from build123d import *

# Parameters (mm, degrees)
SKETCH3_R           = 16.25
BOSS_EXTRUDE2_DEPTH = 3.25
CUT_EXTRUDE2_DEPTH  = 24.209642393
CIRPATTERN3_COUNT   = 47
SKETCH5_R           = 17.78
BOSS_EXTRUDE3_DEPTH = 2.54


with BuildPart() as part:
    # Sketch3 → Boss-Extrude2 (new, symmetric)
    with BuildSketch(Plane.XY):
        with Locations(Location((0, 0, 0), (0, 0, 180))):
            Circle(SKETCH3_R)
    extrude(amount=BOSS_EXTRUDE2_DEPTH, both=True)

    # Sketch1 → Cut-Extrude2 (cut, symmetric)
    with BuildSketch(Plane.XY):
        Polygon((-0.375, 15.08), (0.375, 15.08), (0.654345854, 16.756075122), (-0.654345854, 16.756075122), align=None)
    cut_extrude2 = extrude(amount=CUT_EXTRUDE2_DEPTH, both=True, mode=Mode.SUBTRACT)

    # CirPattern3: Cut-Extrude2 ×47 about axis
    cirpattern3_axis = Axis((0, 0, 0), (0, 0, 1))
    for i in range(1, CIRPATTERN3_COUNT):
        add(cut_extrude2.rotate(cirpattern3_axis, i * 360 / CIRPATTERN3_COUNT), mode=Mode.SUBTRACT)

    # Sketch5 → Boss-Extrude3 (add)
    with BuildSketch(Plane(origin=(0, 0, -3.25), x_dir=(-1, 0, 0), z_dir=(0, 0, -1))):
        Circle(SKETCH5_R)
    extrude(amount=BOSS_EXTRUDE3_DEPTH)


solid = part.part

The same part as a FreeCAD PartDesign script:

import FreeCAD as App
import Part
import Sketcher
from FreeCAD import Vector
Q = App.Units.Quantity


def add_polygon(sketch, points):
    """Adds a closed chain of lines whose ends are joined by coincident constraints."""
    first, n = sketch.GeometryCount, len(points)
    for a, b in zip(points, points[1:] + points[:1]):
        sketch.addGeometry(Part.LineSegment(App.Vector(*a, 0), App.Vector(*b, 0)), False)
    for i in range(n):
        sketch.addConstraint(Sketcher.Constraint("Coincident", first + i, 2, first + (i + 1) % n, 1))

doc = App.newDocument("Part")
body = doc.addObject("PartDesign::Body", "Body")

sketch1 = body.newObject("Sketcher::SketchObject", "Sketch")
sketch1.AttachmentSupport = (doc.getObject("XY_Plane"), [""])
sketch1.MapMode = "FlatFace"
sketch1.addGeometry(Part.Circle(Vector(0, 0, 0), Vector(0, 0, 1), 16), False)
sketch1.addConstraint([
    Sketcher.Constraint("Coincident", 0, 3, -1, 1),
    Sketcher.Constraint("Diameter", 0, 32.5),
])
pad1 = body.newObject("PartDesign::Pad", "Pad")
pad1.Profile = sketch1
pad1.Length = 6.5
pad1.Midplane = True

sketch2 = body.newObject("Sketcher::SketchObject", "Sketch001")
sketch2.AttachmentSupport = (doc.getObject("XY_Plane"), [""])
sketch2.MapMode = "FlatFace"
add_polygon(sketch2, [(-0.4, 15.1), (0.4, 15.1), (0.7, 16.8), (-0.7, 16.8)])
sketch2.addConstraint([
    Sketcher.Constraint("Horizontal", 0),
    Sketcher.Constraint("Horizontal", 2),
    Sketcher.Constraint("Equal", 1, 3),
    Sketcher.Constraint("DistanceX", 0, 1, 0, 2, 0.75),
    Sketcher.Constraint("DistanceX", 2, 2, 2, 1, 1.308692),
    Sketcher.Constraint("DistanceX", -1, 1, 0, 2, 0.375),
    Sketcher.Constraint("DistanceY", -1, 1, 0, 2, 15.08),
    Sketcher.Constraint("Distance", 1, 1.699194),
])
pocket1 = body.newObject("PartDesign::Pocket", "Pocket")
pocket1.Profile = sketch2
pocket1.Length = 48.419285
pocket1.Midplane = True
doc.recompute()

polarpattern = body.newObject("PartDesign::PolarPattern", "PolarPattern")
polarpattern.Originals = [pocket1]
polarpattern.Axis = (doc.getObject("Z_Axis"), [""])
polarpattern.Angle = 360
polarpattern.Occurrences = 47
body.Tip = polarpattern

sketch3 = body.newObject("Sketcher::SketchObject", "Sketch002")
sketch3.AttachmentSupport = (doc.getObject("XY_Plane"), [""])
sketch3.MapMode = "FlatFace"
sketch3.AttachmentOffset = App.Placement(Vector(0, 0, -3.25), App.Rotation())
sketch3.addGeometry(Part.Circle(Vector(0, 0, 0), Vector(0, 0, 1), 18), False)
sketch3.addConstraint([
    Sketcher.Constraint("Coincident", 0, 3, -1, 1),
    Sketcher.Constraint("Diameter", 0, Q("1.4 in")),
])
pad2 = body.newObject("PartDesign::Pad", "Pad001")
pad2.Profile = sketch3
pad2.Length = Q("0.1 in")
pad2.Reversed = True

doc.recompute()
